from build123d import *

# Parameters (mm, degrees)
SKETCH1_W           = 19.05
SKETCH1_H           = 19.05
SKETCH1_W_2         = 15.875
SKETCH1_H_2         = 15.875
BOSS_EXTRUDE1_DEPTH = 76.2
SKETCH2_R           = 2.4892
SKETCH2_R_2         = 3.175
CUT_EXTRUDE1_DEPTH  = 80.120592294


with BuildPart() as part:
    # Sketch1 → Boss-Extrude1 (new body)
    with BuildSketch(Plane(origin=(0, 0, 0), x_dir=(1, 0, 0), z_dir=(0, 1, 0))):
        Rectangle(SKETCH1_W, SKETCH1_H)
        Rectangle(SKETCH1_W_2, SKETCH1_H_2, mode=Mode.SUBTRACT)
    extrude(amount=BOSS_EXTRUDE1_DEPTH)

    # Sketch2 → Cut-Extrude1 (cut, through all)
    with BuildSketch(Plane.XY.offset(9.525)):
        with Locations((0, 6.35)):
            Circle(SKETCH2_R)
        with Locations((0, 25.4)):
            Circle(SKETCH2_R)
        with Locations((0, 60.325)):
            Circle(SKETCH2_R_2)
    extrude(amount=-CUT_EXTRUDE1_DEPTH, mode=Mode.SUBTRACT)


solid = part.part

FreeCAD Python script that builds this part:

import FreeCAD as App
import Part
import Sketcher
Q = App.Units.Quantity

doc = App.newDocument("Part")
body = doc.addObject("PartDesign::Body", "Body")

# Sketch on XZ plane
sketch1 = body.newObject("Sketcher::SketchObject", "Sketch")
sketch1.AttachmentSupport = (doc.getObject("XZ_Plane"), [""])
sketch1.MapMode = "FlatFace"
sketch1.addGeometry([
    Part.LineSegment(App.Vector(-10, -10, 0), App.Vector(-10, 10, 0)),  # 0
    Part.LineSegment(App.Vector(-10, 10, 0), App.Vector(10, 10, 0)),  # 1
    Part.LineSegment(App.Vector(10, 10, 0), App.Vector(10, -10, 0)),  # 2
    Part.LineSegment(App.Vector(10, -10, 0), App.Vector(-10, -10, 0)),  # 3
    Part.LineSegment(App.Vector(8, 8, 0), App.Vector(-8, 8, 0)),  # 4
    Part.LineSegment(App.Vector(-8, 8, 0), App.Vector(-8, -8, 0)),  # 5
    Part.LineSegment(App.Vector(-8, -8, 0), App.Vector(8, -8, 0)),  # 6
    Part.LineSegment(App.Vector(8, -8, 0), App.Vector(8, 8, 0)),  # 7
], False)
sketch1.addConstraint([
    Sketcher.Constraint("Coincident", 0, 2, 1, 1),
    Sketcher.Constraint("Coincident", 1, 2, 2, 1),
    Sketcher.Constraint("Coincident", 2, 2, 3, 1),
    Sketcher.Constraint("Coincident", 3, 2, 0, 1),
    Sketcher.Constraint("Coincident", 4, 2, 5, 1),
    Sketcher.Constraint("Coincident", 5, 2, 6, 1),
    Sketcher.Constraint("Coincident", 6, 2, 7, 1),
    Sketcher.Constraint("Coincident", 7, 2, 4, 1),
    Sketcher.Constraint("Vertical", 0),
    Sketcher.Constraint("Horizontal", 1),
    Sketcher.Constraint("Vertical", 2),
    Sketcher.Constraint("Horizontal", 3),
    Sketcher.Constraint("Horizontal", 4),
    Sketcher.Constraint("Vertical", 5),
    Sketcher.Constraint("Horizontal", 6),
    Sketcher.Constraint("Vertical", 7),
    Sketcher.Constraint("Symmetric", 0, 2, 2, 2, -1, 1),
    Sketcher.Constraint("Symmetric", 4, 2, 6, 2, -1, 1),
    Sketcher.Constraint("Equal", 3, 0),
    Sketcher.Constraint("Equal", 6, 5),
    Sketcher.Constraint("DistanceX", 1, 1, 1, 2, Q("0.75 in")),
    Sketcher.Constraint("DistanceX", 4, 2, 4, 1, Q("0.625 in")),
])
pad1 = body.newObject("PartDesign::Pad", "Pad")
pad1.Profile = sketch1
pad1.Length = Q("3 in")
pad1.Reversed = True

# Sketch on XY plane
sketch2 = body.newObject("Sketcher::SketchObject", "Sketch001")
sketch2.AttachmentSupport = (doc.getObject("XY_Plane"), [""])
sketch2.MapMode = "FlatFace"
sketch2.AttachmentOffset = App.Placement(App.Vector(0, 0, 0.375 * 25.4), App.Rotation())
sketch2.addGeometry([
    Part.Circle(App.Vector(0, 6.3, 0), App.Vector(0, 0, 1), 2.5),
    Part.Circle(App.Vector(0, 25.4, 0), App.Vector(0, 0, 1), 2.5),
    Part.Circle(App.Vector(0, 60.3, 0), App.Vector(0, 0, 1), 3.2),
], False)
sketch2.addConstraint([
    Sketcher.Constraint("Equal", 0, 1),
    Sketcher.Constraint("PointOnObject", 0, 3, -2),
    Sketcher.Constraint("PointOnObject", 1, 3, -2),
    Sketcher.Constraint("PointOnObject", 2, 3, -2),
    Sketcher.Constraint("Diameter", 2, Q("0.25 in")),
    Sketcher.Constraint("Diameter", 0, Q("0.196 in")),
    Sketcher.Constraint("DistanceY", -1, 1, 1, 3, Q("1 in")),
    Sketcher.Constraint("DistanceY", -1, 1, 0, 3, Q("0.25 in")),
    Sketcher.Constraint("DistanceY", -1, 1, 2, 3, Q("2.375 in")),
])
pocket1 = body.newObject("PartDesign::Pocket", "Pocket")
pocket1.Profile = sketch2
pocket1.Type = "ThroughAll"

doc.recompute()
